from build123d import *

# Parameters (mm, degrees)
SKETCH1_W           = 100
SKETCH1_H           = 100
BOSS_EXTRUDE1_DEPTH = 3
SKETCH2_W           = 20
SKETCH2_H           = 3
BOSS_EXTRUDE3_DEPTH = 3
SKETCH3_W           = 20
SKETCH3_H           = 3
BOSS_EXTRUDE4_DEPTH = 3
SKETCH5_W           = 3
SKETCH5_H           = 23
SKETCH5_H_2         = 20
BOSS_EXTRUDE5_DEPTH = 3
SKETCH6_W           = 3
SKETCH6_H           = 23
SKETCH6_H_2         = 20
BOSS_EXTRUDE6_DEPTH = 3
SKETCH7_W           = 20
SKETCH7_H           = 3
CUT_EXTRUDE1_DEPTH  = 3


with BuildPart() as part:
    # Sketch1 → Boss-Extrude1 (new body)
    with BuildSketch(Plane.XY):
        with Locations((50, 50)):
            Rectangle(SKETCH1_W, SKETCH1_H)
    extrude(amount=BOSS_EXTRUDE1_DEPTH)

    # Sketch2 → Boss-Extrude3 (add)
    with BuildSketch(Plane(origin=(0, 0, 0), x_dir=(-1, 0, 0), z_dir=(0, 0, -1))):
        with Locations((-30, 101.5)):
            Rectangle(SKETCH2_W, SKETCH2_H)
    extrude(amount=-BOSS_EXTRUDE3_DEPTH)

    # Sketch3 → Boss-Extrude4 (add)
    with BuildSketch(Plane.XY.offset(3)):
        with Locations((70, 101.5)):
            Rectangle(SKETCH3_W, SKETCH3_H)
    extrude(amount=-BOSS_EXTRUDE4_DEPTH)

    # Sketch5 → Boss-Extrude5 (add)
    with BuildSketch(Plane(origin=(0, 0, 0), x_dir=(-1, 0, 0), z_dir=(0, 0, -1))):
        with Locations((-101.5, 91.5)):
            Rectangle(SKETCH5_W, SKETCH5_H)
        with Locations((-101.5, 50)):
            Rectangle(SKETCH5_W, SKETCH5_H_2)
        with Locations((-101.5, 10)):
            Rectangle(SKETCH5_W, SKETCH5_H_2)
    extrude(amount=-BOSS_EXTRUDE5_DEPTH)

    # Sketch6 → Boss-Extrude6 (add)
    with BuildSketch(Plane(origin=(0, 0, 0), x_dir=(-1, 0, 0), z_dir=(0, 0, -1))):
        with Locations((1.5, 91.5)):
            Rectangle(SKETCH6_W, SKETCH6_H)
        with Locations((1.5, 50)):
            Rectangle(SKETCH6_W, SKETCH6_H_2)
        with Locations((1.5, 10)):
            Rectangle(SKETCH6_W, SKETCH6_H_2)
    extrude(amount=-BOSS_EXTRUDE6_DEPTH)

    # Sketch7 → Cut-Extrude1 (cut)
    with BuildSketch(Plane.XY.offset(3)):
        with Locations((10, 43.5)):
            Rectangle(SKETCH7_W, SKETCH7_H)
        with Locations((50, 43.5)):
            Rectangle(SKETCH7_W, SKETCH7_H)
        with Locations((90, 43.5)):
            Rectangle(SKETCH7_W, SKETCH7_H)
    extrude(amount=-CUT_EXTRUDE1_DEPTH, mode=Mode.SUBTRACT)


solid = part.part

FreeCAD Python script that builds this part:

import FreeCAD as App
import Part
import Sketcher
Q = App.Units.Quantity

doc = App.newDocument("Part")
params = doc.addObject("Spreadsheet::Sheet", "Params")
for row, (alias, value) in enumerate([
    ("sketch1_width", "100 mm"),
    ("pad1_length", "3 mm"),
    ("sketch2_width", "20 mm"),
    ("sketch2_height", "3 mm"),
    ("pad2_length", "3 mm"),
    ("sketch3_width", "20 mm"),
    ("sketch3_height", "3 mm"),
    ("pad3_length", "3 mm"),
    ("sketch4_width", "3 mm"),
    ("sketch4_height", "23 mm"),
    ("sketch4_height2", "20 mm"),
    ("pad4_length", "3 mm"),
    ("sketch5_width", "3 mm"),
    ("sketch5_height", "23 mm"),
    ("sketch5_height2", "20 mm"),
    ("pad5_length", "3 mm"),
    ("sketch6_width", "20 mm"),
    ("sketch6_height", "3 mm"),
    ("pocket1_length", "3 mm"),
], start=1):
    params.set(f"A{row}", alias)
    params.set(f"B{row}", "=" + value)
    params.setAlias(f"B{row}", alias)

body = doc.addObject("PartDesign::Body", "Body")

# Sketch on XY plane
sketch1 = doc.addObject("Sketcher::SketchObject", "Sketch")
body.addObject(sketch1)
sketch1.AttachmentSupport = (doc.XY_Plane, [""])
sketch1.MapMode = "FlatFace"
sketch1.addGeometry(Part.LineSegment(App.Vector(0, 100, 0), App.Vector(0, 0, 0)), False)
sketch1.addGeometry(Part.LineSegment(App.Vector(0, 0, 0), App.Vector(100, 0, 0)), False)
sketch1.addGeometry(Part.LineSegment(App.Vector(100, 0, 0), App.Vector(100, 100, 0)), False)
sketch1.addGeometry(Part.LineSegment(App.Vector(100, 100, 0), App.Vector(0, 100, 0)), False)
sketch1.addConstraint(Sketcher.Constraint("Coincident", 0, 2, 1, 1))
sketch1.addConstraint(Sketcher.Constraint("Coincident", 1, 2, 2, 1))
sketch1.addConstraint(Sketcher.Constraint("Coincident", 2, 2, 3, 1))
sketch1.addConstraint(Sketcher.Constraint("Coincident", 3, 2, 0, 1))
sketch1.addConstraint(Sketcher.Constraint("Vertical", 0))
sketch1.addConstraint(Sketcher.Constraint("Horizontal", 1))
sketch1.addConstraint(Sketcher.Constraint("Vertical", 2))
sketch1.addConstraint(Sketcher.Constraint("Horizontal", 3))
sketch1.addConstraint(Sketcher.Constraint("Coincident", 0, 2, -1, 1))
sketch1.addConstraint(Sketcher.Constraint("Equal", 3, 0))
sketch1.addConstraint(Sketcher.Constraint("DistanceX", 1, 1, 1, 2, Q("100 mm")))
sketch1.setExpression("Constraints[10]", "Params.sketch1_width")
pad1 = doc.addObject("PartDesign::Pad", "Pad")
body.addObject(pad1)
pad1.Profile = sketch1
pad1.setExpression("Length", "Params.pad1_length")

# Sketch on XY plane
sketch2 = doc.addObject("Sketcher::SketchObject", "Sketch001")
body.addObject(sketch2)
sketch2.AttachmentSupport = (doc.XY_Plane, [""])
sketch2.MapMode = "FlatFace"
sketch2.addGeometry(Part.LineSegment(App.Vector(40, 103, 0), App.Vector(40, 100, 0)), False)
sketch2.addGeometry(Part.LineSegment(App.Vector(40, 100, 0), App.Vector(20, 100, 0)), False)
sketch2.addGeometry(Part.LineSegment(App.Vector(20, 100, 0), App.Vector(20, 103, 0)), False)
sketch2.addGeometry(Part.LineSegment(App.Vector(20, 103, 0), App.Vector(40, 103, 0)), False)
sketch2.addConstraint(Sketcher.Constraint("Coincident", 0, 2, 1, 1))
sketch2.addConstraint(Sketcher.Constraint("Coincident", 1, 2, 2, 1))
sketch2.addConstraint(Sketcher.Constraint("Coincident", 2, 2, 3, 1))
sketch2.addConstraint(Sketcher.Constraint("Coincident", 3, 2, 0, 1))
sketch2.addConstraint(Sketcher.Constraint("Vertical", 0))
sketch2.addConstraint(Sketcher.Constraint("Horizontal", 1))
sketch2.addConstraint(Sketcher.Constraint("Vertical", 2))
sketch2.addConstraint(Sketcher.Constraint("Horizontal", 3))
sketch2.addConstraint(Sketcher.Constraint("DistanceX", 1, 2, 1, 1, Q("20 mm")))
sketch2.addConstraint(Sketcher.Constraint("DistanceY", 0, 2, 0, 1, Q("3 mm")))
sketch2.addConstraint(Sketcher.Constraint("DistanceX", -1, 1, 0, 2, Q("40 mm")))
sketch2.addConstraint(Sketcher.Constraint("DistanceY", -1, 1, 0, 2, Q("100 mm")))
sketch2.setExpression("Constraints[8]", "Params.sketch2_width")
sketch2.setExpression("Constraints[9]", "Params.sketch2_height")
pad2 = doc.addObject("PartDesign::Pad", "Pad001")
body.addObject(pad2)
pad2.Profile = sketch2
pad2.setExpression("Length", "Params.pad2_length")

# Sketch on XY plane
sketch3 = doc.addObject("Sketcher::SketchObject", "Sketch002")
body.addObject(sketch3)
sketch3.AttachmentSupport = (doc.XY_Plane, [""])
sketch3.MapMode = "FlatFace"
sketch3.AttachmentOffset = App.Placement(App.Vector(0, 0, 3), App.Rotation())
sketch3.addGeometry(Part.LineSegment(App.Vector(60, 103, 0), App.Vector(60, 100, 0)), False)
sketch3.addGeometry(Part.LineSegment(App.Vector(60, 100, 0), App.Vector(80, 100, 0)), False)
sketch3.addGeometry(Part.LineSegment(App.Vector(80, 100, 0), App.Vector(80, 103, 0)), False)
sketch3.addGeometry(Part.LineSegment(App.Vector(80, 103, 0), App.Vector(60, 103, 0)), False)
sketch3.addConstraint(Sketcher.Constraint("Coincident", 0, 2, 1, 1))
sketch3.addConstraint(Sketcher.Constraint("Coincident", 1, 2, 2, 1))
sketch3.addConstraint(Sketcher.Constraint("Coincident", 2, 2, 3, 1))
sketch3.addConstraint(Sketcher.Constraint("Coincident", 3, 2, 0, 1))
sketch3.addConstraint(Sketcher.Constraint("Vertical", 0))
sketch3.addConstraint(Sketcher.Constraint("Horizontal", 1))
sketch3.addConstraint(Sketcher.Constraint("Vertical", 2))
sketch3.addConstraint(Sketcher.Constraint("Horizontal", 3))
sketch3.addConstraint(Sketcher.Constraint("DistanceX", 1, 1, 1, 2, Q("20 mm")))
sketch3.addConstraint(Sketcher.Constraint("DistanceY", 0, 2, 0, 1, Q("3 mm")))
sketch3.addConstraint(Sketcher.Constraint("DistanceX", -1, 1, 0, 2, Q("60 mm")))
sketch3.addConstraint(Sketcher.Constraint("DistanceY", -1, 1, 0, 2, Q("100 mm")))
sketch3.setExpression("Constraints[8]", "Params.sketch3_width")
sketch3.setExpression("Constraints[9]", "Params.sketch3_height")
pad3 = doc.addObject("PartDesign::Pad", "Pad002")
body.addObject(pad3)
pad3.Profile = sketch3
pad3.setExpression("Length", "Params.pad3_length")
pad3.Reversed = True

# Sketch on XY plane
sketch4 = doc.addObject("Sketcher::SketchObject", "Sketch003")
body.addObject(sketch4)
sketch4.AttachmentSupport = (doc.XY_Plane, [""])
sketch4.MapMode = "FlatFace"
sketch4.addGeometry(Part.LineSegment(App.Vector(103, 103, 0), App.Vector(103, 80, 0)), False)
sketch4.addGeometry(Part.LineSegment(App.Vector(103, 80, 0), App.Vector(100, 80, 0)), False)
sketch4.addGeometry(Part.LineSegment(App.Vector(100, 80, 0), App.Vector(100, 103, 0)), False)
sketch4.addGeometry(Part.LineSegment(App.Vector(100, 103, 0), App.Vector(103, 103, 0)), False)
sketch4.addGeometry(Part.LineSegment(App.Vector(103, 60, 0), App.Vector(103, 40, 0)), False)
sketch4.addGeometry(Part.LineSegment(App.Vector(103, 40, 0), App.Vector(100, 40, 0)), False)
sketch4.addGeometry(Part.LineSegment(App.Vector(100, 40, 0), App.Vector(100, 60, 0)), False)
sketch4.addGeometry(Part.LineSegment(App.Vector(100, 60, 0), App.Vector(103, 60, 0)), False)
sketch4.addGeometry(Part.LineSegment(App.Vector(103, 20, 0), App.Vector(103, 0, 0)), False)
sketch4.addGeometry(Part.LineSegment(App.Vector(103, 0, 0), App.Vector(100, 0, 0)), False)
sketch4.addGeometry(Part.LineSegment(App.Vector(100, 0, 0), App.Vector(100, 20, 0)), False)
sketch4.addGeometry(Part.LineSegment(App.Vector(100, 20, 0), App.Vector(103, 20, 0)), False)
sketch4.addConstraint(Sketcher.Constraint("Coincident", 0, 2, 1, 1))
sketch4.addConstraint(Sketcher.Constraint("Coincident", 1, 2, 2, 1))
sketch4.addConstraint(Sketcher.Constraint("Coincident", 2, 2, 3, 1))
sketch4.addConstraint(Sketcher.Constraint("Coincident", 3, 2, 0, 1))
sketch4.addConstraint(Sketcher.Constraint("Coincident", 4, 2, 5, 1))
sketch4.addConstraint(Sketcher.Constraint("Coincident", 5, 2, 6, 1))
sketch4.addConstraint(Sketcher.Constraint("Coincident", 6, 2, 7, 1))
sketch4.addConstraint(Sketcher.Constraint("Coincident", 7, 2, 4, 1))
sketch4.addConstraint(Sketcher.Constraint("Coincident", 8, 2, 9, 1))
sketch4.addConstraint(Sketcher.Constraint("Coincident", 9, 2, 10, 1))
sketch4.addConstraint(Sketcher.Constraint("Coincident", 10, 2, 11, 1))
sketch4.addConstraint(Sketcher.Constraint("Coincident", 11, 2, 8, 1))
sketch4.addConstraint(Sketcher.Constraint("Vertical", 0))
sketch4.addConstraint(Sketcher.Constraint("Horizontal", 1))
sketch4.addConstraint(Sketcher.Constraint("Vertical", 2))
sketch4.addConstraint(Sketcher.Constraint("Horizontal", 3))
sketch4.addConstraint(Sketcher.Constraint("Vertical", 4))
sketch4.addConstraint(Sketcher.Constraint("Horizontal", 5))
sketch4.addConstraint(Sketcher.Constraint("Vertical", 6))
sketch4.addConstraint(Sketcher.Constraint("Horizontal", 7))
sketch4.addConstraint(Sketcher.Constraint("Vertical", 8))
sketch4.addConstraint(Sketcher.Constraint("Horizontal", 9))
sketch4.addConstraint(Sketcher.Constraint("Vertical", 10))
sketch4.addConstraint(Sketcher.Constraint("Horizontal", 11))
sketch4.addConstraint(Sketcher.Constraint("PointOnObject", 8, 2, -1))
sketch4.addConstraint(Sketcher.Constraint("Vertical", 3, 2, 4, 2))
sketch4.addConstraint(Sketcher.Constraint("Vertical", 2, 2, 5, 2))
sketch4.addConstraint(Sketcher.Constraint("Vertical", 7, 2, 8, 2))
sketch4.addConstraint(Sketcher.Constraint("Vertical", 6, 2, 9, 2))
sketch4.addConstraint(Sketcher.Constraint("Equal", 6, 8))
sketch4.addConstraint(Sketcher.Constraint("DistanceX", 1, 2, 1, 1, Q("3 mm")))
sketch4.addConstraint(Sketcher.Constraint("DistanceY", 0, 2, 0, 1, Q("23 mm")))
sketch4.addConstraint(Sketcher.Constraint("DistanceY", 4, 2, 4, 1, Q("20 mm")))
sketch4.addConstraint(Sketcher.Constraint("DistanceX", -1, 1, 0, 2, Q("103 mm")))
sketch4.addConstraint(Sketcher.Constraint("DistanceY", -1, 1, 0, 2, Q("80 mm")))
sketch4.addConstraint(Sketcher.Constraint("DistanceY", -1, 1, 4, 2, Q("40 mm")))
sketch4.setExpression("Constraints[30]", "Params.sketch4_width")
sketch4.setExpression("Constraints[31]", "Params.sketch4_height")
sketch4.setExpression("Constraints[32]", "Params.sketch4_height2")
pad4 = doc.addObject("PartDesign::Pad", "Pad003")
body.addObject(pad4)
pad4.Profile = sketch4
pad4.setExpression("Length", "Params.pad4_length")

# Sketch on XY plane
sketch5 = doc.addObject("Sketcher::SketchObject", "Sketch004")
body.addObject(sketch5)
sketch5.AttachmentSupport = (doc.XY_Plane, [""])
sketch5.MapMode = "FlatFace"
sketch5.addGeometry(Part.LineSegment(App.Vector(0, 103, 0), App.Vector(0, 80, 0)), False)
sketch5.addGeometry(Part.LineSegment(App.Vector(0, 80, 0), App.Vector(-3, 80, 0)), False)
sketch5.addGeometry(Part.LineSegment(App.Vector(-3, 80, 0), App.Vector(-3, 103, 0)), False)
sketch5.addGeometry(Part.LineSegment(App.Vector(-3, 103, 0), App.Vector(0, 103, 0)), False)
sketch5.addGeometry(Part.LineSegment(App.Vector(0, 60, 0), App.Vector(0, 40, 0)), False)
sketch5.addGeometry(Part.LineSegment(App.Vector(0, 40, 0), App.Vector(-3, 40, 0)), False)
sketch5.addGeometry(Part.LineSegment(App.Vector(-3, 40, 0), App.Vector(-3, 60, 0)), False)
sketch5.addGeometry(Part.LineSegment(App.Vector(-3, 60, 0), App.Vector(0, 60, 0)), False)
sketch5.addGeometry(Part.LineSegment(App.Vector(0, 20, 0), App.Vector(0, 0, 0)), False)
sketch5.addGeometry(Part.LineSegment(App.Vector(0, 0, 0), App.Vector(-3, 0, 0)), False)
sketch5.addGeometry(Part.LineSegment(App.Vector(-3, 0, 0), App.Vector(-3, 20, 0)), False)
sketch5.addGeometry(Part.LineSegment(App.Vector(-3, 20, 0), App.Vector(0, 20, 0)), False)
sketch5.addConstraint(Sketcher.Constraint("Coincident", 0, 2, 1, 1))
sketch5.addConstraint(Sketcher.Constraint("Coincident", 1, 2, 2, 1))
sketch5.addConstraint(Sketcher.Constraint("Coincident", 2, 2, 3, 1))
sketch5.addConstraint(Sketcher.Constraint("Coincident", 3, 2, 0, 1))
sketch5.addConstraint(Sketcher.Constraint("Coincident", 4, 2, 5, 1))
sketch5.addConstraint(Sketcher.Constraint("Coincident", 5, 2, 6, 1))
sketch5.addConstraint(Sketcher.Constraint("Coincident", 6, 2, 7, 1))
sketch5.addConstraint(Sketcher.Constraint("Coincident", 7, 2, 4, 1))
sketch5.addConstraint(Sketcher.Constraint("Coincident", 8, 2, 9, 1))
sketch5.addConstraint(Sketcher.Constraint("Coincident", 9, 2, 10, 1))
sketch5.addConstraint(Sketcher.Constraint("Coincident", 10, 2, 11, 1))
sketch5.addConstraint(Sketcher.Constraint("Coincident", 11, 2, 8, 1))
sketch5.addConstraint(Sketcher.Constraint("Vertical", 0))
sketch5.addConstraint(Sketcher.Constraint("Horizontal", 1))
sketch5.addConstraint(Sketcher.Constraint("Vertical", 2))
sketch5.addConstraint(Sketcher.Constraint("Horizontal", 3))
sketch5.addConstraint(Sketcher.Constraint("Vertical", 4))
sketch5.addConstraint(Sketcher.Constraint("Horizontal", 5))
sketch5.addConstraint(Sketcher.Constraint("Vertical", 6))
sketch5.addConstraint(Sketcher.Constraint("Horizontal", 7))
sketch5.addConstraint(Sketcher.Constraint("Vertical", 8))
sketch5.addConstraint(Sketcher.Constraint("Horizontal", 9))
sketch5.addConstraint(Sketcher.Constraint("Vertical", 10))
sketch5.addConstraint(Sketcher.Constraint("Horizontal", 11))
sketch5.addConstraint(Sketcher.Constraint("Coincident", 8, 2, -1, 1))
sketch5.addConstraint(Sketcher.Constraint("PointOnObject", 0, 2, -2))
sketch5.addConstraint(Sketcher.Constraint("PointOnObject", 4, 2, -2))
sketch5.addConstraint(Sketcher.Constraint("Vertical", 2, 2, 5, 2))
sketch5.addConstraint(Sketcher.Constraint("Vertical", 6, 2, 9, 2))
sketch5.addConstraint(Sketcher.Constraint("Equal", 6, 8))
sketch5.addConstraint(Sketcher.Constraint("DistanceX", 1, 2, 1, 1, Q("3 mm")))
sketch5.addConstraint(Sketcher.Constraint("DistanceY", 0, 2, 0, 1, Q("23 mm")))
sketch5.addConstraint(Sketcher.Constraint("DistanceY", 4, 2, 4, 1, Q("20 mm")))
sketch5.addConstraint(Sketcher.Constraint("DistanceY", -1, 1, 0, 2, Q("80 mm")))
sketch5.addConstraint(Sketcher.Constraint("DistanceY", -1, 1, 4, 2, Q("40 mm")))
sketch5.setExpression("Constraints[30]", "Params.sketch5_width")
sketch5.setExpression("Constraints[31]", "Params.sketch5_height")
sketch5.setExpression("Constraints[32]", "Params.sketch5_height2")
pad5 = doc.addObject("PartDesign::Pad", "Pad004")
body.addObject(pad5)
pad5.Profile = sketch5
pad5.setExpression("Length", "Params.pad5_length")

# Sketch on XY plane
sketch6 = doc.addObject("Sketcher::SketchObject", "Sketch005")
body.addObject(sketch6)
sketch6.AttachmentSupport = (doc.XY_Plane, [""])
sketch6.MapMode = "FlatFace"
sketch6.AttachmentOffset = App.Placement(App.Vector(0, 0, 3), App.Rotation())
sketch6.addGeometry(Part.LineSegment(App.Vector(0, 45, 0), App.Vector(0, 42, 0)), False)
sketch6.addGeometry(Part.LineSegment(App.Vector(0, 42, 0), App.Vector(20, 42, 0)), False)
sketch6.addGeometry(Part.LineSegment(App.Vector(20, 42, 0), App.Vector(20, 45, 0)), False)
sketch6.addGeometry(Part.LineSegment(App.Vector(20, 45, 0), App.Vector(0, 45, 0)), False)
sketch6.addGeometry(Part.LineSegment(App.Vector(40, 45, 0), App.Vector(40, 42, 0)), False)
sketch6.addGeometry(Part.LineSegment(App.Vector(40, 42, 0), App.Vector(60, 42, 0)), False)
sketch6.addGeometry(Part.LineSegment(App.Vector(60, 42, 0), App.Vector(60, 45, 0)), False)
sketch6.addGeometry(Part.LineSegment(App.Vector(60, 45, 0), App.Vector(40, 45, 0)), False)
sketch6.addGeometry(Part.LineSegment(App.Vector(80, 45, 0), App.Vector(80, 42, 0)), False)
sketch6.addGeometry(Part.LineSegment(App.Vector(80, 42, 0), App.Vector(100, 42, 0)), False)
sketch6.addGeometry(Part.LineSegment(App.Vector(100, 42, 0), App.Vector(100, 45, 0)), False)
sketch6.addGeometry(Part.LineSegment(App.Vector(100, 45, 0), App.Vector(80, 45, 0)), False)
sketch6.addConstraint(Sketcher.Constraint("Coincident", 0, 2, 1, 1))
sketch6.addConstraint(Sketcher.Constraint("Coincident", 1, 2, 2, 1))
sketch6.addConstraint(Sketcher.Constraint("Coincident", 2, 2, 3, 1))
sketch6.addConstraint(Sketcher.Constraint("Coincident", 3, 2, 0, 1))
sketch6.addConstraint(Sketcher.Constraint("Coincident", 4, 2, 5, 1))
sketch6.addConstraint(Sketcher.Constraint("Coincident", 5, 2, 6, 1))
sketch6.addConstraint(Sketcher.Constraint("Coincident", 6, 2, 7, 1))
sketch6.addConstraint(Sketcher.Constraint("Coincident", 7, 2, 4, 1))
sketch6.addConstraint(Sketcher.Constraint("Coincident", 8, 2, 9, 1))
sketch6.addConstraint(Sketcher.Constraint("Coincident", 9, 2, 10, 1))
sketch6.addConstraint(Sketcher.Constraint("Coincident", 10, 2, 11, 1))
sketch6.addConstraint(Sketcher.Constraint("Coincident", 11, 2, 8, 1))
sketch6.addConstraint(Sketcher.Constraint("Vertical", 0))
sketch6.addConstraint(Sketcher.Constraint("Horizontal", 1))
sketch6.addConstraint(Sketcher.Constraint("Vertical", 2))
sketch6.addConstraint(Sketcher.Constraint("Horizontal", 3))
sketch6.addConstraint(Sketcher.Constraint("Vertical", 4))
sketch6.addConstraint(Sketcher.Constraint("Horizontal", 5))
sketch6.addConstraint(Sketcher.Constraint("Vertical", 6))
sketch6.addConstraint(Sketcher.Constraint("Horizontal", 7))
sketch6.addConstraint(Sketcher.Constraint("Vertical", 8))
sketch6.addConstraint(Sketcher.Constraint("Horizontal", 9))
sketch6.addConstraint(Sketcher.Constraint("Vertical", 10))
sketch6.addConstraint(Sketcher.Constraint("Horizontal", 11))
sketch6.addConstraint(Sketcher.Constraint("PointOnObject", 0, 2, -2))
sketch6.addConstraint(Sketcher.Constraint("Horizontal", 1, 2, 4, 2))
sketch6.addConstraint(Sketcher.Constraint("Horizontal", 3, 2, 6, 2))
sketch6.addConstraint(Sketcher.Constraint("Horizontal", 5, 2, 8, 2))
sketch6.addConstraint(Sketcher.Constraint("Horizontal", 7, 2, 10, 2))
sketch6.addConstraint(Sketcher.Constraint("Equal", 3, 5))
sketch6.addConstraint(Sketcher.Constraint("Equal", 7, 9))
sketch6.addConstraint(Sketcher.Constraint("DistanceX", 1, 1, 1, 2, Q("20 mm")))
sketch6.addConstraint(Sketcher.Constraint("DistanceY", 0, 2, 0, 1, Q("3 mm")))
sketch6.addConstraint(Sketcher.Constraint("DistanceY", -1, 1, 0, 2, Q("42 mm")))
sketch6.addConstraint(Sketcher.Constraint("DistanceX", -1, 1, 4, 2, Q("40 mm")))
sketch6.addConstraint(Sketcher.Constraint("DistanceX", -1, 1, 8, 2, Q("80 mm")))
sketch6.setExpression("Constraints[31]", "Params.sketch6_width")
sketch6.setExpression("Constraints[32]", "Params.sketch6_height")
pocket1 = doc.addObject("PartDesign::Pocket", "Pocket")
body.addObject(pocket1)
pocket1.Profile = sketch6
pocket1.setExpression("Length", "Params.pocket1_length")

doc.recompute()
